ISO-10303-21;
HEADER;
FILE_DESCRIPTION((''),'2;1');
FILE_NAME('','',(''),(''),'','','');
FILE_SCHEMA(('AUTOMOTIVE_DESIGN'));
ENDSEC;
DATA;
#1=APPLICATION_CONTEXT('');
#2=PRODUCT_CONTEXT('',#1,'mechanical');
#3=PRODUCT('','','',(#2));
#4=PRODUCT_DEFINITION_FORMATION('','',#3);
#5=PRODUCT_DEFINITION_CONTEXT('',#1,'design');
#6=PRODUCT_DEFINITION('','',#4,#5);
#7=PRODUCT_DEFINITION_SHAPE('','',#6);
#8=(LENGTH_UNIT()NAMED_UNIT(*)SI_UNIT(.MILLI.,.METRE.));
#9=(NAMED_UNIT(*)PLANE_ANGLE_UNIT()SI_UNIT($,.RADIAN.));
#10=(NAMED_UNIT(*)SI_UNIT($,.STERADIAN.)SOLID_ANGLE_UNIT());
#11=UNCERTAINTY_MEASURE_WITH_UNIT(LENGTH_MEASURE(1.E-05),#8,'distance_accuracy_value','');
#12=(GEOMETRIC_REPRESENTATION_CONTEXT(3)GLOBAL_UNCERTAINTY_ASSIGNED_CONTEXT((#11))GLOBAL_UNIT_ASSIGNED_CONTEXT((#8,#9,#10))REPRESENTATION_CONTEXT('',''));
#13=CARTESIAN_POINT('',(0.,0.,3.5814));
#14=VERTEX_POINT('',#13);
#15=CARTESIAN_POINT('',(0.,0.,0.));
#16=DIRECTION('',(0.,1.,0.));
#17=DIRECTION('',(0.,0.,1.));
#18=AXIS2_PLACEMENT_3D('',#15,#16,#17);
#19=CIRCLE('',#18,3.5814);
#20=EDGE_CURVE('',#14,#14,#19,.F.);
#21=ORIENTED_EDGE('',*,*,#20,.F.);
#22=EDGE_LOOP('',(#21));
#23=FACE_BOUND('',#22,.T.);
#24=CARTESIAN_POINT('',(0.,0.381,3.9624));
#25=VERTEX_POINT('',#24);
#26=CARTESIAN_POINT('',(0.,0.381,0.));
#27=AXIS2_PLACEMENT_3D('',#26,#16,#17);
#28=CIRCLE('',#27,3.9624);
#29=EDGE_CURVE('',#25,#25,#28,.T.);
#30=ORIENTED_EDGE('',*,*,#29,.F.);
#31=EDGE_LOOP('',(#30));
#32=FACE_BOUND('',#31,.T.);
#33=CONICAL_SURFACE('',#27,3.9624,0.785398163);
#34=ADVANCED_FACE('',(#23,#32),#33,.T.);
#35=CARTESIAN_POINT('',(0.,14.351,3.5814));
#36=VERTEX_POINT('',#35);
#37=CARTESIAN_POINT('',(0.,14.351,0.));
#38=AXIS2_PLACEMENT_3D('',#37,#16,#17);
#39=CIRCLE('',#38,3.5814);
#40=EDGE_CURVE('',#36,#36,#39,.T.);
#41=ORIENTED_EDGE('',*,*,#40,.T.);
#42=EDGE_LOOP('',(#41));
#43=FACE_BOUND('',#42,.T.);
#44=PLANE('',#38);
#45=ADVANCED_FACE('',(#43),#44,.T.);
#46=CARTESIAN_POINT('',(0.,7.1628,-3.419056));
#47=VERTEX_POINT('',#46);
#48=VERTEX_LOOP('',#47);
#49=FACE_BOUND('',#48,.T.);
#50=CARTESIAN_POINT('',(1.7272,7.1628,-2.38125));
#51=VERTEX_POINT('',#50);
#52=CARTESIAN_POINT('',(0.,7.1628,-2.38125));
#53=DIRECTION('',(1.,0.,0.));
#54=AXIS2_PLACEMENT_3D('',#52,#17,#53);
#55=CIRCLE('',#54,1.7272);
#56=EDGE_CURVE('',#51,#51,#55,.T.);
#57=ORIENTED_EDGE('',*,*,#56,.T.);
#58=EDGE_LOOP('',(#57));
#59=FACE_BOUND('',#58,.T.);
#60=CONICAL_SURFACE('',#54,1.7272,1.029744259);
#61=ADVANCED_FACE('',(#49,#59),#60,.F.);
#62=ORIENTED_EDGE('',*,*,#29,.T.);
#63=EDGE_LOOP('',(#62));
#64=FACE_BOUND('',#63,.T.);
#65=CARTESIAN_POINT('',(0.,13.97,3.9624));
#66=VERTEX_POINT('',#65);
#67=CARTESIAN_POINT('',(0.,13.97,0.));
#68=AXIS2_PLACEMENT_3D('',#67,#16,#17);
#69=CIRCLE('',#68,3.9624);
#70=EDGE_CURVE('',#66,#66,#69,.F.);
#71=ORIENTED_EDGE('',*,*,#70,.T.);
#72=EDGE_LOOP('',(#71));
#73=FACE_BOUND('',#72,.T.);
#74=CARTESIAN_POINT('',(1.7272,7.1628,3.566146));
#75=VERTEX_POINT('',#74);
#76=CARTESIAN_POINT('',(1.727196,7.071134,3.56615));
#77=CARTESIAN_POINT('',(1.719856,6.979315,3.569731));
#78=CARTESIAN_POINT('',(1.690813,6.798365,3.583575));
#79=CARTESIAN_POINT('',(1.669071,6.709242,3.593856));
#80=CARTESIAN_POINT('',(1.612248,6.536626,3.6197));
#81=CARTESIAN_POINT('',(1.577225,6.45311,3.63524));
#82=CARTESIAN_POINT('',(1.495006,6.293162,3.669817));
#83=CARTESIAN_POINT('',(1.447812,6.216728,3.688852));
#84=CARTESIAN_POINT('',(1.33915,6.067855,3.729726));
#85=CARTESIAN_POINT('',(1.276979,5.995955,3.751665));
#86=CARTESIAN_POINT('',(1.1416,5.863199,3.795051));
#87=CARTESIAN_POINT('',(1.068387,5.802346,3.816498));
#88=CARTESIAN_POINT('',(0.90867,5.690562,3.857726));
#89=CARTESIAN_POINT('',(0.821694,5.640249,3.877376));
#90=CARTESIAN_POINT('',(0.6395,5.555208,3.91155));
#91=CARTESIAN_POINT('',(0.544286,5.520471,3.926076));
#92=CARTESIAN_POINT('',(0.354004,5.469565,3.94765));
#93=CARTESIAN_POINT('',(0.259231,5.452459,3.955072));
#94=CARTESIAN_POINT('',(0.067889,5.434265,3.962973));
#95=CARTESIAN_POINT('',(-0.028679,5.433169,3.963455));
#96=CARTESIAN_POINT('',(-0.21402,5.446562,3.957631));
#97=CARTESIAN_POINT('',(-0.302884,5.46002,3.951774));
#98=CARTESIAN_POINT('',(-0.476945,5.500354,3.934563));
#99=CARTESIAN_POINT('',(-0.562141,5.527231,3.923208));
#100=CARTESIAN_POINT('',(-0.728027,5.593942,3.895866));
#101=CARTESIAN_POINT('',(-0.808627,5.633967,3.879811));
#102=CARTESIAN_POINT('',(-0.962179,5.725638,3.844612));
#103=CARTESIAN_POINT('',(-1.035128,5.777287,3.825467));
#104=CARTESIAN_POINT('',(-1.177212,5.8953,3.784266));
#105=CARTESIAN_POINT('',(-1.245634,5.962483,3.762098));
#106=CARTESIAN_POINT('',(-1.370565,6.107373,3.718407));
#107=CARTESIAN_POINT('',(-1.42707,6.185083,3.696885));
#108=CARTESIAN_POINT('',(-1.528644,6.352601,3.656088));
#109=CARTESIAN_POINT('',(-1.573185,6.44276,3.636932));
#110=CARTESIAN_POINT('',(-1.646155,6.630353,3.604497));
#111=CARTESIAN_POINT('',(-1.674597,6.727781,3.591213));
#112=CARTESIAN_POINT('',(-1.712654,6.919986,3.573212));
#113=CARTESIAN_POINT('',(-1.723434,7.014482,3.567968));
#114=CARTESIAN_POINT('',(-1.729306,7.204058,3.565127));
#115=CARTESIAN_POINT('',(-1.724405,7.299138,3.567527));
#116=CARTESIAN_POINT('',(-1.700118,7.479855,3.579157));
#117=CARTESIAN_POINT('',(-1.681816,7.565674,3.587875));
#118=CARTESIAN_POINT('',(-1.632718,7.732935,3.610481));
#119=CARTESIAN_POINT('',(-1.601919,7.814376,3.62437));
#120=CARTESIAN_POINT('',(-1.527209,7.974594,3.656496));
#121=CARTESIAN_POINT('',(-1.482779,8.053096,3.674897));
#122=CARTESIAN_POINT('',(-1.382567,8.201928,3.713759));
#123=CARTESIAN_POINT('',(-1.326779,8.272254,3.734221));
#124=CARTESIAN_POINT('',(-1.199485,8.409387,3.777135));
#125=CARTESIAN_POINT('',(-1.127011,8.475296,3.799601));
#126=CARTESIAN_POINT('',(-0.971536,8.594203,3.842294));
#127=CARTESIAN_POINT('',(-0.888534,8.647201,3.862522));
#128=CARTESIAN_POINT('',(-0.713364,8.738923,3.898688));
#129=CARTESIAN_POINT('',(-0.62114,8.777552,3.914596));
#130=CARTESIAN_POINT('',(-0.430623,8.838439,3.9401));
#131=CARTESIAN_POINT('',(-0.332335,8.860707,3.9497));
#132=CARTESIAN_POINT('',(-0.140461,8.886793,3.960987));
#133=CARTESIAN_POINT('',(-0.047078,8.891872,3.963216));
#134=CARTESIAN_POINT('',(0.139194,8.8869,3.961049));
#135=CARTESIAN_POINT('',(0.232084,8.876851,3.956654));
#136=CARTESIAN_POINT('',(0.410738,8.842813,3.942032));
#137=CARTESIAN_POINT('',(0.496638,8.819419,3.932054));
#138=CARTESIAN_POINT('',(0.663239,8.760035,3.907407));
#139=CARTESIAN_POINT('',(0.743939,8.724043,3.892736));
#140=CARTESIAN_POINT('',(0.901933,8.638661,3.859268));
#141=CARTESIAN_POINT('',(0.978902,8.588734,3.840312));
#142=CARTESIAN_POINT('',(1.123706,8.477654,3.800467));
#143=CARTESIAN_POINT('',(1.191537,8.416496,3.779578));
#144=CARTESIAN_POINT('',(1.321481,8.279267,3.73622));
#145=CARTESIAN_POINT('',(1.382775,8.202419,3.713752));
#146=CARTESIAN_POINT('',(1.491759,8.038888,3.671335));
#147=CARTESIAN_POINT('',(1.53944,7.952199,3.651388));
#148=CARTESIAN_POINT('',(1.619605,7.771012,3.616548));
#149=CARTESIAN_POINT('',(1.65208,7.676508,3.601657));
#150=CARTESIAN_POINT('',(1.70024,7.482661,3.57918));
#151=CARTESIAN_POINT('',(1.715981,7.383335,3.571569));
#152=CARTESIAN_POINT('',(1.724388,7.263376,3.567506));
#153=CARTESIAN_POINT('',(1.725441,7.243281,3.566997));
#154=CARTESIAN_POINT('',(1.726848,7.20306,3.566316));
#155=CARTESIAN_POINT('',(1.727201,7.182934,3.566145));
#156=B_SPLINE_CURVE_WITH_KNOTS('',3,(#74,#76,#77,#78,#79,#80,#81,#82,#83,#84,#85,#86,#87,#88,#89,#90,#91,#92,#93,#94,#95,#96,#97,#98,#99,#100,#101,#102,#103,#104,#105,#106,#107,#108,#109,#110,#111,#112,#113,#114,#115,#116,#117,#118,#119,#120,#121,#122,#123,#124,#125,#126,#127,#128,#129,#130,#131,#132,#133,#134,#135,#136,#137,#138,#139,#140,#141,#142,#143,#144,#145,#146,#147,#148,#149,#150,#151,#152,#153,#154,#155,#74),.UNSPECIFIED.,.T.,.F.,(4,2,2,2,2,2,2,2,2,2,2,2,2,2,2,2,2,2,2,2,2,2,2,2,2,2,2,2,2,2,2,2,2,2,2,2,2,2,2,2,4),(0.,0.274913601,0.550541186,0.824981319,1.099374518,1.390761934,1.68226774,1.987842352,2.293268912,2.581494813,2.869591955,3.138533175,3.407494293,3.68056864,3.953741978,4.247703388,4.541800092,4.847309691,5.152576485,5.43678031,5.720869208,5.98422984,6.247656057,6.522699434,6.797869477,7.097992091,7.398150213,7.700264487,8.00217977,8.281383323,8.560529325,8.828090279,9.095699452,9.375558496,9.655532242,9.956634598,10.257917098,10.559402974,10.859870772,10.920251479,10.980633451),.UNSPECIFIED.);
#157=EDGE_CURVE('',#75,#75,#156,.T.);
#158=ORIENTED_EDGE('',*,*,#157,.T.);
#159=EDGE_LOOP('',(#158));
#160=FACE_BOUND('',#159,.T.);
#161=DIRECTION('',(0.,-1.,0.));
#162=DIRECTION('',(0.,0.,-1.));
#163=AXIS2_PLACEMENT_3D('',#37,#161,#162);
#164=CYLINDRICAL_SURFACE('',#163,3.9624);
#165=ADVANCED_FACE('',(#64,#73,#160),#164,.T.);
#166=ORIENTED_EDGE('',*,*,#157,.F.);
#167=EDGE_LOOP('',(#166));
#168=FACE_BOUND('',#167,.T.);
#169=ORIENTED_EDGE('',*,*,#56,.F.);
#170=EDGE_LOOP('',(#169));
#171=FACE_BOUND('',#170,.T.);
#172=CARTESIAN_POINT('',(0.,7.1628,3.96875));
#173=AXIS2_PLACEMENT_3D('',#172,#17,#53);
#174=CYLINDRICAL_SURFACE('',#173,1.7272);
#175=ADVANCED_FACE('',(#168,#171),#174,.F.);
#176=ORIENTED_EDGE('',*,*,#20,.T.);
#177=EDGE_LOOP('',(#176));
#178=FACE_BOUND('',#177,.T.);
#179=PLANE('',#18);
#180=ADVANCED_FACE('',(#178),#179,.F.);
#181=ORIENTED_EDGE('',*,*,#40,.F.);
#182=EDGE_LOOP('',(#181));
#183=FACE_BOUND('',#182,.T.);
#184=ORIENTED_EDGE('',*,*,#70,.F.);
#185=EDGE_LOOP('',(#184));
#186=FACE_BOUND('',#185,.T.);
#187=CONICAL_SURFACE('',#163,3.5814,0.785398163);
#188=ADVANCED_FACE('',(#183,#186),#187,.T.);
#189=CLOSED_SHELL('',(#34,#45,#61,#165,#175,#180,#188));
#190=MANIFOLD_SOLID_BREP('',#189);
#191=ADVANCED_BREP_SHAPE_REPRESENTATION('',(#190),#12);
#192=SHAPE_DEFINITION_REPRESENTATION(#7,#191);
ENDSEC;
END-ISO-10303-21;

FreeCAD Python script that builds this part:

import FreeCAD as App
import Part
import Sketcher

V = App.Vector
Q = App.Units.Quantity


def edges_at(feature, points):
    """Names of the edges that pass closest to the given points."""
    edges = feature.Shape.Edges
    near = lambda p: min(range(len(edges)), key=lambda i: edges[i].distToShape(Part.Vertex(*p))[0])
    return sorted({f"Edge{near(p) + 1}" for p in points})

doc = App.newDocument("Part")
body = doc.addObject("PartDesign::Body", "Body")

# Sketch on XZ plane
sketch1 = doc.addObject("Sketcher::SketchObject", "Sketch")
body.addObject(sketch1)
sketch1.AttachmentSupport = (doc.XZ_Plane, [""])
sketch1.MapMode = "FlatFace"
sketch1.addGeometry(Part.Circle(V(0, 0, 0), V(0, 0, 1), 4), False)
sketch1.addConstraint([
    Sketcher.Constraint("Coincident", 0, 3, -1, 1),
    Sketcher.Constraint("Diameter", 0, Q("0.312 in")),
])
pad1 = doc.addObject("PartDesign::Pad", "Pad")
body.addObject(pad1)
pad1.Profile = sketch1
pad1.Length = Q("0.565 in")
pad1.Reversed = True
doc.recompute()

chamfer = doc.addObject("PartDesign::Chamfer", "Chamfer")
body.addObject(chamfer)
chamfer.Base = (pad1, edges_at(pad1, [(-3.962, 0, 0), (-3.962, 14.351, 0)]))
chamfer.Size = Q("0.015 in")

# Sketch on XY plane
sketch2 = doc.addObject("Sketcher::SketchObject", "Sketch001")
body.addObject(sketch2)
sketch2.AttachmentSupport = (doc.XY_Plane, [""])
sketch2.MapMode = "FlatFace"
sketch2.AttachmentOffset = App.Placement(V(0, 0, 0.15625 * 25.4), App.Rotation())
sketch2.addGeometry(Part.Circle(V(0, 7.2, 0), V(0, 0, 1), 1.7), False)
sketch2.addConstraint([
    Sketcher.Constraint("PointOnObject", 0, 3, -2),
    Sketcher.Constraint("Diameter", 0, Q("0.136 in")),
    Sketcher.Constraint("DistanceY", -1, 1, 0, 3, Q("0.282 in")),
])
doc.recompute()
hole = doc.addObject("PartDesign::Hole", "Hole")
body.addObject(hole)
hole.Profile = sketch2
hole.ThreadType = "None"
hole.Diameter = Q("0.136 in")
hole.DepthType = "Dimension"
hole.Depth = Q("0.25 in")
hole.DrillPoint = "Angled"
hole.DrillPointAngle = 118

doc.recompute()
